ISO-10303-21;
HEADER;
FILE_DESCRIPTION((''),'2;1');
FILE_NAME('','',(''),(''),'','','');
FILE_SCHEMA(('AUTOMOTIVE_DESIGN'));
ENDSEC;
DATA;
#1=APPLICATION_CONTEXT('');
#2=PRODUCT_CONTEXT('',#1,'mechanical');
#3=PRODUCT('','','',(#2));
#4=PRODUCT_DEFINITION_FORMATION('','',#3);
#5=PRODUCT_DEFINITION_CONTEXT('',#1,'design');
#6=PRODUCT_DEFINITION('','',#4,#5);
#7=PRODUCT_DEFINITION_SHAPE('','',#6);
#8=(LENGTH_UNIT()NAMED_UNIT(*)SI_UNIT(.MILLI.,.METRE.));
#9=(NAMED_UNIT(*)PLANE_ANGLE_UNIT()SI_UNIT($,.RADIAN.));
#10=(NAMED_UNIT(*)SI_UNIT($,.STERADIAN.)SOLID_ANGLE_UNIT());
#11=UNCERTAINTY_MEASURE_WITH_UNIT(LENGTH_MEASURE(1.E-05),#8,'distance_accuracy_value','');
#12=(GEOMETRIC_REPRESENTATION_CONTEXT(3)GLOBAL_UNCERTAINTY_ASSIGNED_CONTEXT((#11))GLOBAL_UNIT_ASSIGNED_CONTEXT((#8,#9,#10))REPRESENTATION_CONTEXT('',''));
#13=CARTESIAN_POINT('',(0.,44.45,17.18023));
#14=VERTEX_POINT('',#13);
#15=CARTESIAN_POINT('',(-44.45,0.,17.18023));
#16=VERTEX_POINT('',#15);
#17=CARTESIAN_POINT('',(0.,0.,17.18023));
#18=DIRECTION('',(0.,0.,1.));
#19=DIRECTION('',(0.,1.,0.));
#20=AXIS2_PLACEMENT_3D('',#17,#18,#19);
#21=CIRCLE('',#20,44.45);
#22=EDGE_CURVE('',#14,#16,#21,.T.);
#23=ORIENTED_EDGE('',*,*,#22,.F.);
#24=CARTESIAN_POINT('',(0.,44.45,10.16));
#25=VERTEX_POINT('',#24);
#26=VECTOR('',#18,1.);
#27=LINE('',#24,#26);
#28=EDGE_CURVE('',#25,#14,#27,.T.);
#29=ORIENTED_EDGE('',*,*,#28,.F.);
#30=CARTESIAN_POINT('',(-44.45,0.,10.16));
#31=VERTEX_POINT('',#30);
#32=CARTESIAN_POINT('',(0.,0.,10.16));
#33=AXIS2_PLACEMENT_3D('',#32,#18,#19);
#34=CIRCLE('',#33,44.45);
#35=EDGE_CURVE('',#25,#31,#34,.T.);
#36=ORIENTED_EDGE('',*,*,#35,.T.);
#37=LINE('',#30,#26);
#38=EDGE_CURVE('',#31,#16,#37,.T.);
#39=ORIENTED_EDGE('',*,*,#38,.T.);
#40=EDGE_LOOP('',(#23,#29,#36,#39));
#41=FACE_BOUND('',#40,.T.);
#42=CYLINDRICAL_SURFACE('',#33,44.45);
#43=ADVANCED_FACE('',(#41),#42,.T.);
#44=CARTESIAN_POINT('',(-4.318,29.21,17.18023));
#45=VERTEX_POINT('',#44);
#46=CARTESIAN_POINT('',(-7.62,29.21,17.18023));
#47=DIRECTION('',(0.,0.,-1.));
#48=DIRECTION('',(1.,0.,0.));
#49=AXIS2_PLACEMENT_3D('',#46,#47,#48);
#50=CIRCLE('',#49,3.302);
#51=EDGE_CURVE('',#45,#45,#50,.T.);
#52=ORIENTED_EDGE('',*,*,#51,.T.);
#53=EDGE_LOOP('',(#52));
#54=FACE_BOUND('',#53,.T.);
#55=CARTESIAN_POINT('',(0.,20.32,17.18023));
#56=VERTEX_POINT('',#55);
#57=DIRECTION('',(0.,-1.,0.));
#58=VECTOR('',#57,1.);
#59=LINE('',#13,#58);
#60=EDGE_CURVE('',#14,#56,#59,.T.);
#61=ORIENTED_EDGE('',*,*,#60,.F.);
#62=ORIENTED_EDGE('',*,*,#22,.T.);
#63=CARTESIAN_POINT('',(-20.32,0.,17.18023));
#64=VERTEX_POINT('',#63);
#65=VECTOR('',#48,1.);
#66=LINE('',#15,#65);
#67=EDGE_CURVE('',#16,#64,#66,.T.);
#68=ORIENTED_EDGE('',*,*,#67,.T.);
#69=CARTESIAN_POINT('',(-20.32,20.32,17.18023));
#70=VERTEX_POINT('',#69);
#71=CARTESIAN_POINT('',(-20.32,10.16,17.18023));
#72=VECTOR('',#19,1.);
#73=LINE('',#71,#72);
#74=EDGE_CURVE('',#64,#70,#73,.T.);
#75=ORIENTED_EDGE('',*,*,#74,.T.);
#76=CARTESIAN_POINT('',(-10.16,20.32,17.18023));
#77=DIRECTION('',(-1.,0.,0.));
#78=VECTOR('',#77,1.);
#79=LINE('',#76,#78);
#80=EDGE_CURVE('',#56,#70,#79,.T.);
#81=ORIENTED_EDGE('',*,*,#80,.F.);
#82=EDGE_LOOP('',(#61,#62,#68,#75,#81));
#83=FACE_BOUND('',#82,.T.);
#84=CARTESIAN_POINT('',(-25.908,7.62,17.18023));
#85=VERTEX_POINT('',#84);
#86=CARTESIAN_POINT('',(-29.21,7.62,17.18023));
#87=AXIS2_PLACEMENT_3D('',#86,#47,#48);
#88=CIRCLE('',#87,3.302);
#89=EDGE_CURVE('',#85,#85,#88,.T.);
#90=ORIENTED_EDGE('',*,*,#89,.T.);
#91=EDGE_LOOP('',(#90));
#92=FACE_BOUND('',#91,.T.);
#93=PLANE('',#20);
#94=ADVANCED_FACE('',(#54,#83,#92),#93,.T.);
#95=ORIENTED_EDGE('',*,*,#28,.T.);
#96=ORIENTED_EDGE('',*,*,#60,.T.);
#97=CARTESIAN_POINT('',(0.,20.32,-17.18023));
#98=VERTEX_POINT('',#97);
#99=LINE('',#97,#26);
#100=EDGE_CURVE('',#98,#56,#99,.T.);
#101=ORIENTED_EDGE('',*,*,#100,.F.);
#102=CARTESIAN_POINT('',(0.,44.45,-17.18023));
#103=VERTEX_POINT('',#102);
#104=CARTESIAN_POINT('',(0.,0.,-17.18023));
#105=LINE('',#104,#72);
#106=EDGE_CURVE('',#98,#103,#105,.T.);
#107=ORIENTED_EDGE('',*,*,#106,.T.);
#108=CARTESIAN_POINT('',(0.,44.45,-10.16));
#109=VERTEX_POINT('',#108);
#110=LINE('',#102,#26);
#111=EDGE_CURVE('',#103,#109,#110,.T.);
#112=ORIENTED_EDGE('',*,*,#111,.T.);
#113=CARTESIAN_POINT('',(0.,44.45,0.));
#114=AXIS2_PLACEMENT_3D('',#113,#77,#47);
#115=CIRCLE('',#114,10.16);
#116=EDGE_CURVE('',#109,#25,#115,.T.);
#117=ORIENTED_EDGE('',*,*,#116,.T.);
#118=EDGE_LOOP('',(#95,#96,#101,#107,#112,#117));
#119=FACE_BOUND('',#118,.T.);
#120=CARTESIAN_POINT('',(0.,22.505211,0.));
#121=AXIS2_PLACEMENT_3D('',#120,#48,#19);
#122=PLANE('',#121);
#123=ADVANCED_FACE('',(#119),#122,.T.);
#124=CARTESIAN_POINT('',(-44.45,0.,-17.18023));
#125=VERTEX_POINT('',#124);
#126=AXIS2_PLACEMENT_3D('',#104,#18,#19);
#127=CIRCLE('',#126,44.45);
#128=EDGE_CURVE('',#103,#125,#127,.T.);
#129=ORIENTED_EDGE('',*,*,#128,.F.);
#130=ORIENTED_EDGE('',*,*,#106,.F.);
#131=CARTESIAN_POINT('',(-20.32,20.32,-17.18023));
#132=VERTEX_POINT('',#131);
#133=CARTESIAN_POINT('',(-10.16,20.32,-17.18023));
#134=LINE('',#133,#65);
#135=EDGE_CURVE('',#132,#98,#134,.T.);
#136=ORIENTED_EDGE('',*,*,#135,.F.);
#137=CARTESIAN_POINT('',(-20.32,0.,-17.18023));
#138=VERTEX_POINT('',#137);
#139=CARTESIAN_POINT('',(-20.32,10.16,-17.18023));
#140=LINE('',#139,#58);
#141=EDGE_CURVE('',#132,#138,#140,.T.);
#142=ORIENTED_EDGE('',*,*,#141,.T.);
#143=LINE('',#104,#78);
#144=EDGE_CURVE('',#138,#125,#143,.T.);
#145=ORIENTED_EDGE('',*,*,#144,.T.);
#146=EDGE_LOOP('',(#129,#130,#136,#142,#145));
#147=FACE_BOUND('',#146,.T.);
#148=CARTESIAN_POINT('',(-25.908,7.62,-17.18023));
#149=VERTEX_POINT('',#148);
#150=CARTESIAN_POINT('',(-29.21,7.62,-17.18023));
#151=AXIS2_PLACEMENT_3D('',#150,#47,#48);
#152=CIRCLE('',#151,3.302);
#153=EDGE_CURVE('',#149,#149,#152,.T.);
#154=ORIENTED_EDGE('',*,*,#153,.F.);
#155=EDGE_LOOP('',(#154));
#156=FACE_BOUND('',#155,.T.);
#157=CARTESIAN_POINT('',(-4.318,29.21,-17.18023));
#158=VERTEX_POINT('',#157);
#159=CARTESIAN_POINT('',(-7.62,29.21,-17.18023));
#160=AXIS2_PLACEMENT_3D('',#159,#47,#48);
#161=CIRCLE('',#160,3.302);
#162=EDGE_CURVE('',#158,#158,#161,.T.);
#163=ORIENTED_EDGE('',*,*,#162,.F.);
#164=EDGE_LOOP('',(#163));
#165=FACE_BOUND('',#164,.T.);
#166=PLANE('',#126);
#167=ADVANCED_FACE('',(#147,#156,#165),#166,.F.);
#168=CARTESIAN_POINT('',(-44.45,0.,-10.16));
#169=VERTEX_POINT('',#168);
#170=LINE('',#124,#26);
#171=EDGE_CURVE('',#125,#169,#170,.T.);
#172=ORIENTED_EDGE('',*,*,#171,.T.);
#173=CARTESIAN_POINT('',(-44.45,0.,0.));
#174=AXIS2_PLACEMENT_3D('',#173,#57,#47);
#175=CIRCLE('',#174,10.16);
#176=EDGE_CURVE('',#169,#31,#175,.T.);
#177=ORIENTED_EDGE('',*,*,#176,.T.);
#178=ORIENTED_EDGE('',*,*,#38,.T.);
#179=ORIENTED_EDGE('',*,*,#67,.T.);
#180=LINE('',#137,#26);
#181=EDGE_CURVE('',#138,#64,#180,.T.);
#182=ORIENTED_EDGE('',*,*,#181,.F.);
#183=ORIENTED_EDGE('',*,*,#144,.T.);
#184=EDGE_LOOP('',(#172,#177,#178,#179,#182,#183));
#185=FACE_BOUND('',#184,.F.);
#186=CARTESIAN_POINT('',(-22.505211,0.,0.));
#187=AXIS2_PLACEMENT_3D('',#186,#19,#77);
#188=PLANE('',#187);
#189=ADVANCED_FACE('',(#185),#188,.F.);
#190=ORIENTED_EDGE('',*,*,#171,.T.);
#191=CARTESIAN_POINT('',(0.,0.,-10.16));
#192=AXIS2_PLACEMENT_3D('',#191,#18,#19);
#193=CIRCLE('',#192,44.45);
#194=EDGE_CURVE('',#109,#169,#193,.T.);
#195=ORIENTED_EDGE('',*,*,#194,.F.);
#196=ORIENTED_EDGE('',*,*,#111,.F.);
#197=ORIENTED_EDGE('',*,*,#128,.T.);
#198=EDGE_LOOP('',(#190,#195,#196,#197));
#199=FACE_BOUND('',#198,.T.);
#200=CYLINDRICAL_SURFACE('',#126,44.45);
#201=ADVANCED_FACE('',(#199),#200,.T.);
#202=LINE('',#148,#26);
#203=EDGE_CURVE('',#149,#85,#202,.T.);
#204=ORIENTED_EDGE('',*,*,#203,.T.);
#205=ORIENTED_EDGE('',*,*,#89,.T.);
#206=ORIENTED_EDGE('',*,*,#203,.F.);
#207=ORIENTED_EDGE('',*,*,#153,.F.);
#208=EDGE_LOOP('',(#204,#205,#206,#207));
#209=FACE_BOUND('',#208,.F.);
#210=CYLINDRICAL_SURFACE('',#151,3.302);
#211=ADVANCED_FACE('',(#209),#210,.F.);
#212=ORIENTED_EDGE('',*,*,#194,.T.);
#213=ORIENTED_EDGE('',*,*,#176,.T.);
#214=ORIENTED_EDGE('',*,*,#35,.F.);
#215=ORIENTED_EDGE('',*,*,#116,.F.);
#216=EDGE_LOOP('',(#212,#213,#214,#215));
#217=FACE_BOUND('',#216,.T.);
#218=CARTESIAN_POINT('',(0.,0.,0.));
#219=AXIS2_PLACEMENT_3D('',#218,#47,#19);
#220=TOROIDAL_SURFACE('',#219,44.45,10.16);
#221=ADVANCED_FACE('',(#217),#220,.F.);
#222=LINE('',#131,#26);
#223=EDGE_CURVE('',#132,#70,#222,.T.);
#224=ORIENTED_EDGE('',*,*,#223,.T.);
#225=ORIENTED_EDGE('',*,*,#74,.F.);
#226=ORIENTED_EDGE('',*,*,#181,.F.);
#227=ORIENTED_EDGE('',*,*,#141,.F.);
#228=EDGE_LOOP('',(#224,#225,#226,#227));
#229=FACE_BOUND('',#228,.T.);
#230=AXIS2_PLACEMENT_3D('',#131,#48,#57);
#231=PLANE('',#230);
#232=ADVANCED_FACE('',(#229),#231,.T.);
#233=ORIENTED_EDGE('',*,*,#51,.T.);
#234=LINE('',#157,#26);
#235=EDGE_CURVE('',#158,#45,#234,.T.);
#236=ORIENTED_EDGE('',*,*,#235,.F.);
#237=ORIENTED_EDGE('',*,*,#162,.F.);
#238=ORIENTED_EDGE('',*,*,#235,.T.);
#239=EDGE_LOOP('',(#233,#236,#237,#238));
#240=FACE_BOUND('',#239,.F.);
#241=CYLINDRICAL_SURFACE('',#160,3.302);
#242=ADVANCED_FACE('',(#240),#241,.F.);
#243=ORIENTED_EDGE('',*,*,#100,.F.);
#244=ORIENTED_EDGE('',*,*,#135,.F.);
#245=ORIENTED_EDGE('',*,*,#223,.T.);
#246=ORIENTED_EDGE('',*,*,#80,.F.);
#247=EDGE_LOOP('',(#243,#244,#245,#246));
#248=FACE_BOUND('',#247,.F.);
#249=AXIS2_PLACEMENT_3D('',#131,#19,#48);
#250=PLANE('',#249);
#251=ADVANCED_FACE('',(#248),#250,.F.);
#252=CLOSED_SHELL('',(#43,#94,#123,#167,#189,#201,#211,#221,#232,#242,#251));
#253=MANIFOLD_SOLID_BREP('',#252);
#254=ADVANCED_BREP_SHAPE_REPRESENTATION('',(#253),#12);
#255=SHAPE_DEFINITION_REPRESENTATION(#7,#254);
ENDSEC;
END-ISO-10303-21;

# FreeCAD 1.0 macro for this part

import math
import FreeCAD as App
import Part
import Sketcher
Q = App.Units.Quantity

doc = App.newDocument("Part")
body = doc.addObject("PartDesign::Body", "Body")

# Sketch on YZ plane
sketch1 = body.newObject("Sketcher::SketchObject", "Sketch")
sketch1.AttachmentSupport = (doc.getObject("YZ_Plane"), [""])
sketch1.MapMode = "FlatFace"
sketch1.addGeometry([
    Part.ArcOfCircle(Part.Circle(App.Vector(44, 0, 0), App.Vector(0, 0, 1), 10), math.radians(90), math.radians(270)),  # 0
    Part.LineSegment(App.Vector(44, 10, 0), App.Vector(44, 17, 0)),  # 1
    Part.LineSegment(App.Vector(44, 17, 0), App.Vector(0, 17, 0)),  # 2
    Part.LineSegment(App.Vector(0, 17, 0), App.Vector(0, -17, 0)),  # 3
    Part.LineSegment(App.Vector(0, -17, 0), App.Vector(44, -17, 0)),  # 4
    Part.LineSegment(App.Vector(44, -17, 0), App.Vector(44, -10, 0)),  # 5
], False)
sketch1.addConstraint([
    Sketcher.Constraint("Coincident", 0, 1, 1, 1),
    Sketcher.Constraint("Coincident", 1, 2, 2, 1),
    Sketcher.Constraint("Coincident", 2, 2, 3, 1),
    Sketcher.Constraint("Coincident", 3, 2, 4, 1),
    Sketcher.Constraint("Coincident", 4, 2, 5, 1),
    Sketcher.Constraint("Coincident", 5, 2, 0, 2),
    Sketcher.Constraint("Vertical", 1),
    Sketcher.Constraint("Horizontal", 2),
    Sketcher.Constraint("Vertical", 3),
    Sketcher.Constraint("Horizontal", 4),
    Sketcher.Constraint("Vertical", 5),
    Sketcher.Constraint("Symmetric", 2, 2, 3, 2, -1, 1),
    Sketcher.Constraint("Symmetric", 0, 1, 5, 2, -1),
    Sketcher.Constraint("Radius", 0, Q("0.4 in")),
    Sketcher.Constraint("DistanceX", 2, 2, 2, 1, Q("1.75 in")),
    Sketcher.Constraint("DistanceX", -1, 1, 0, 3, Q("1.75 in")),
    Sketcher.Constraint("DistanceY", 1, 1, 1, 2, Q("7.02023 mm")),
])
revolution = body.newObject("PartDesign::Revolution", "Revolution")
revolution.Profile = sketch1
revolution.ReferenceAxis = (sketch1, ["V_Axis"])
revolution.Angle = 90

# Sketch on XY plane
sketch2 = body.newObject("Sketcher::SketchObject", "Sketch001")
sketch2.AttachmentSupport = (doc.getObject("XY_Plane"), [""])
sketch2.MapMode = "FlatFace"
sketch2.AttachmentOffset = App.Placement(App.Vector(0, 0, -17.18023), App.Rotation())
sketch2.addGeometry([
    Part.LineSegment(App.Vector(-20, 0, 0), App.Vector(-20, 20, 0)),
    Part.LineSegment(App.Vector(-20, 20, 0), App.Vector(0, 20, 0)),
    Part.LineSegment(App.Vector(0, 20, 0), App.Vector(0, 0, 0)),
    Part.LineSegment(App.Vector(0, 0, 0), App.Vector(-20, 0, 0)),
], False)
sketch2.addConstraint([
    Sketcher.Constraint("Coincident", 0, 2, 1, 1),
    Sketcher.Constraint("Coincident", 1, 2, 2, 1),
    Sketcher.Constraint("Coincident", 2, 2, 3, 1),
    Sketcher.Constraint("Coincident", 3, 2, 0, 1),
    Sketcher.Constraint("Vertical", 0),
    Sketcher.Constraint("Horizontal", 1),
    Sketcher.Constraint("Vertical", 2),
    Sketcher.Constraint("Horizontal", 3),
    Sketcher.Constraint("Coincident", 2, 2, -1, 1),
    Sketcher.Constraint("Equal", 3, 0),
    Sketcher.Constraint("DistanceX", 1, 1, 1, 2, Q("0.8 in")),
])
pocket1 = body.newObject("PartDesign::Pocket", "Pocket")
pocket1.Profile = sketch2
pocket1.Type = "ThroughAll"
pocket1.Reversed = True

# Sketch on XY plane
sketch3 = body.newObject("Sketcher::SketchObject", "Sketch002")
sketch3.AttachmentSupport = (doc.getObject("XY_Plane"), [""])
sketch3.MapMode = "FlatFace"
sketch3.AttachmentOffset = App.Placement(App.Vector(0, 0, -17.18023), App.Rotation())
sketch3.addGeometry([
    Part.Circle(App.Vector(-29.2, 7.6, 0), App.Vector(0, 0, 1), 3.3),
    Part.Circle(App.Vector(-7.6, 29.2, 0), App.Vector(0, 0, 1), 3.3),
], False)
sketch3.addConstraint([
    Sketcher.Constraint("Equal", 0, 1),
    Sketcher.Constraint("Diameter", 0, Q("0.26 in")),
    Sketcher.Constraint("DistanceY", -1, 1, 0, 3, Q("0.3 in")),
    Sketcher.Constraint("DistanceX", 1, 3, -1, 1, Q("0.3 in")),
    Sketcher.Constraint("DistanceX", 0, 3, -1, 1, Q("1.15 in")),
    Sketcher.Constraint("DistanceY", -1, 1, 1, 3, Q("1.15 in")),
])
pocket2 = body.newObject("PartDesign::Pocket", "Pocket001")
pocket2.Profile = sketch3
pocket2.Type = "ThroughAll"
pocket2.Reversed = True

doc.recompute()
